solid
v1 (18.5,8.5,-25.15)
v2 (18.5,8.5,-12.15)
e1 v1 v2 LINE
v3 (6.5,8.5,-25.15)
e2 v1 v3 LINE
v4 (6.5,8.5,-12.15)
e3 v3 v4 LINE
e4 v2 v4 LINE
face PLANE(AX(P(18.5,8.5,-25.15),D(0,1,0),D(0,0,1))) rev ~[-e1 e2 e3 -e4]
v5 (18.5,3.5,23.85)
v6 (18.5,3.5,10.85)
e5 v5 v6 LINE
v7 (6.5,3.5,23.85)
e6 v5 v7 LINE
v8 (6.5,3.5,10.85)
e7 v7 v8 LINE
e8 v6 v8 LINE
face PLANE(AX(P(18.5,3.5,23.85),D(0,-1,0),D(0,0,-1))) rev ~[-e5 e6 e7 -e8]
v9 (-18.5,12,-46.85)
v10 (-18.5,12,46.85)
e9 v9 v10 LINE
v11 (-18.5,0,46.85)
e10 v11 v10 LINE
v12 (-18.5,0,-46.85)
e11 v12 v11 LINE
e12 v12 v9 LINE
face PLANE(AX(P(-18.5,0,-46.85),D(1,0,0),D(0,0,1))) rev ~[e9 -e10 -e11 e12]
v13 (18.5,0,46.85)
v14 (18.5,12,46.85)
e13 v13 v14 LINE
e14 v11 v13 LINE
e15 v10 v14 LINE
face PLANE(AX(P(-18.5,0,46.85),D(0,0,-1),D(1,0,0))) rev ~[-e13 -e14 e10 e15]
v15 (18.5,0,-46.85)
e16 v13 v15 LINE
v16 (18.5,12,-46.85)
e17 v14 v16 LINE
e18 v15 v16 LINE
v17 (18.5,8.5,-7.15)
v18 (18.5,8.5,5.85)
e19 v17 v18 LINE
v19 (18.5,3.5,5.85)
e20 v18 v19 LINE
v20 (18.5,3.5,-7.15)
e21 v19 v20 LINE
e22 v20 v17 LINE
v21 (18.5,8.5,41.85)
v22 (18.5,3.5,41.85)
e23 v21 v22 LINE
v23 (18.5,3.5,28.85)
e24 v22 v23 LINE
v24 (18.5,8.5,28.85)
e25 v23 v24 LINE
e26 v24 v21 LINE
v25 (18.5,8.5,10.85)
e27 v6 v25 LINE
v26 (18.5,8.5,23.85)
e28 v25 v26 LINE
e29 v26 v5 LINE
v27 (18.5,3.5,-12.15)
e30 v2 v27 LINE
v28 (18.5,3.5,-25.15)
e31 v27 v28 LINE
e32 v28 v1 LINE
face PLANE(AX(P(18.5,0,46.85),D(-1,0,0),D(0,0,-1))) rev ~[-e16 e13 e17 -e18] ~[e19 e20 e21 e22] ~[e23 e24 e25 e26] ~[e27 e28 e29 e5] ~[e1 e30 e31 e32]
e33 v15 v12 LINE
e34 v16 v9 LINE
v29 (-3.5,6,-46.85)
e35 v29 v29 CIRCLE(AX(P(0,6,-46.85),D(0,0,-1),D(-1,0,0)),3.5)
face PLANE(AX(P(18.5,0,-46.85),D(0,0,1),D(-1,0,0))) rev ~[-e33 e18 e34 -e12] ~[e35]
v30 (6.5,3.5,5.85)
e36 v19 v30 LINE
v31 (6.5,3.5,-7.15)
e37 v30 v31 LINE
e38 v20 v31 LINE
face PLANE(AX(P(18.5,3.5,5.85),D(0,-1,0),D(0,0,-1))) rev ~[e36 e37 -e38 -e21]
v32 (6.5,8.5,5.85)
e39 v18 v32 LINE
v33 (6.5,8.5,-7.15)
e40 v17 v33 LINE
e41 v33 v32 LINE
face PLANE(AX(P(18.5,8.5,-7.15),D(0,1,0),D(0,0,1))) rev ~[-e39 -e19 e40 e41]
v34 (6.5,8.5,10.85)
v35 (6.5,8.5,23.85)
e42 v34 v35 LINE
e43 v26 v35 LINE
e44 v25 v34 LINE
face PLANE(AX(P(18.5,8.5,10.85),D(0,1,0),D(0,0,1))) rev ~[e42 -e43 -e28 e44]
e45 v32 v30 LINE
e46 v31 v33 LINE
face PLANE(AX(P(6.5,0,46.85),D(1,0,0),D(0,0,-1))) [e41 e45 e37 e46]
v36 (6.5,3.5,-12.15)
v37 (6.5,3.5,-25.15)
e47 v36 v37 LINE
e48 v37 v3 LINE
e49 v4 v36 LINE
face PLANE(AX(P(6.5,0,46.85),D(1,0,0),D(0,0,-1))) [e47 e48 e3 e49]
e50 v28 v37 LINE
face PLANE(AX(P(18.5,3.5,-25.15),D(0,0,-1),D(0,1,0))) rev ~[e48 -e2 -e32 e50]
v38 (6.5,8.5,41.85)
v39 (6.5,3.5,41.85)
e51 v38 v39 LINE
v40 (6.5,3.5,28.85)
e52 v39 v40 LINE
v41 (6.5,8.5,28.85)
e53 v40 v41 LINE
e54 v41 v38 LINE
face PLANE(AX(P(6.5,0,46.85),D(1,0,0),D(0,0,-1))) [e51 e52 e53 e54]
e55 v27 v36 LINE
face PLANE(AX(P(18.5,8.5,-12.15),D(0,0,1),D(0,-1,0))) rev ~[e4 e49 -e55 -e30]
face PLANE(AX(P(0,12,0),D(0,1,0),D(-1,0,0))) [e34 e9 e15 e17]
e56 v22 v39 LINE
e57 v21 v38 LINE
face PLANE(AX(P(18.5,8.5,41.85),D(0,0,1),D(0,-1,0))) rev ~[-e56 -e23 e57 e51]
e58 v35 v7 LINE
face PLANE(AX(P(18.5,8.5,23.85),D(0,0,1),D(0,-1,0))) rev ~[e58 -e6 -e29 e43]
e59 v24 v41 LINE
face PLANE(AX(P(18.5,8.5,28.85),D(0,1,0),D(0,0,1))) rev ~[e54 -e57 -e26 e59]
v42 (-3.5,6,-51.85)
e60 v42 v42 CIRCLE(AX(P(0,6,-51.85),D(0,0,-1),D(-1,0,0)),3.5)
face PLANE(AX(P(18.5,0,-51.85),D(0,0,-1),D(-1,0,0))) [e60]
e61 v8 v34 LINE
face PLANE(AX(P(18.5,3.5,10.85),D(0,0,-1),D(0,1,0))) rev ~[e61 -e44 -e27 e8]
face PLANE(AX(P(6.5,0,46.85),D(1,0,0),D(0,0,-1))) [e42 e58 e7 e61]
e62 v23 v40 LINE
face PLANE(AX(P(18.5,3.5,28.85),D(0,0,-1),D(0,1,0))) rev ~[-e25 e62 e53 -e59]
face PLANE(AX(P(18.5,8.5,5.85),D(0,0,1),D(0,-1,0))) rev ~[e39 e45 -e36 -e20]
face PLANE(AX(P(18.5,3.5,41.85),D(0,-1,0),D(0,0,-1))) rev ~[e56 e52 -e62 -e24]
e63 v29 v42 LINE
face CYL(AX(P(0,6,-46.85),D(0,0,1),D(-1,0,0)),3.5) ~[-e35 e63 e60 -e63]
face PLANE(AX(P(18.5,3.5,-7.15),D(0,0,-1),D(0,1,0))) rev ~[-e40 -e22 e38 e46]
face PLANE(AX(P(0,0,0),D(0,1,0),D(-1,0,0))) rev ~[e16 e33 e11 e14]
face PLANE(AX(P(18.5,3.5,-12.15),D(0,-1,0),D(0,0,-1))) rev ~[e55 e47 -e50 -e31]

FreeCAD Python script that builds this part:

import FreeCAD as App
import Part
import Sketcher
from FreeCAD import Vector
Q = App.Units.Quantity

doc = App.newDocument("Part")
params = doc.addObject("Spreadsheet::Sheet", "Params")
for row, (alias, value) in enumerate([
    ("sketch1_width", "37 mm"),
    ("sketch1_height", "93.7 mm"),
    ("pad1_length", "12 mm"),
    ("sketch2_width", "5 mm"),
    ("sketch2_height", "13 mm"),
    ("pocket1_length", "12 mm"),
    ("sketch3_diameter", "7 mm"),
    ("pad2_length", "5 mm"),
], start=1):
    params.set(f"A{row}", alias)
    params.set(f"B{row}", "=" + value)
    params.setAlias(f"B{row}", alias)

body = doc.addObject("PartDesign::Body", "Body")

# Sketch on XZ plane
sketch1 = body.newObject("Sketcher::SketchObject", "Sketch")
sketch1.AttachmentSupport = (doc.getObject("XZ_Plane"), [""])
sketch1.MapMode = "FlatFace"
sketch1.addGeometry([
    Part.LineSegment(Vector(-18, -47, 0), Vector(-18, 47, 0)),
    Part.LineSegment(Vector(-18, 47, 0), Vector(18, 47, 0)),
    Part.LineSegment(Vector(18, 47, 0), Vector(18, -47, 0)),
    Part.LineSegment(Vector(18, -47, 0), Vector(-18, -47, 0)),
], False)
sketch1.addConstraint([
    Sketcher.Constraint("Coincident", 0, 2, 1, 1),
    Sketcher.Constraint("Coincident", 1, 2, 2, 1),
    Sketcher.Constraint("Coincident", 2, 2, 3, 1),
    Sketcher.Constraint("Coincident", 3, 2, 0, 1),
    Sketcher.Constraint("Vertical", 0),
    Sketcher.Constraint("Horizontal", 1),
    Sketcher.Constraint("Vertical", 2),
    Sketcher.Constraint("Horizontal", 3),
    Sketcher.Constraint("Symmetric", 0, 2, 2, 2, -1, 1),
    Sketcher.Constraint("DistanceX", 1, 1, 1, 2, Q("37 mm")),
    Sketcher.Constraint("DistanceY", 0, 1, 0, 2, Q("93.7 mm")),
])
sketch1.setExpression("Constraints[9]", "Params.sketch1_width")
sketch1.setExpression("Constraints[10]", "Params.sketch1_height")
pad1 = body.newObject("PartDesign::Pad", "Pad")
pad1.Profile = sketch1
pad1.setExpression("Length", "Params.pad1_length")
pad1.Reversed = True

# Sketch on YZ plane
sketch2 = body.newObject("Sketcher::SketchObject", "Sketch001")
sketch2.AttachmentSupport = (doc.getObject("YZ_Plane"), [""])
sketch2.MapMode = "FlatFace"
sketch2.AttachmentOffset = App.Placement(Vector(0, 0, 18.5), App.Rotation())
sketch2.addGeometry([
    Part.LineSegment(Vector(8, 42, 0), Vector(4, 42, 0)),  # 0
    Part.LineSegment(Vector(4, 42, 0), Vector(4, 29, 0)),  # 1
    Part.LineSegment(Vector(4, 29, 0), Vector(8, 29, 0)),  # 2
    Part.LineSegment(Vector(8, 29, 0), Vector(8, 42, 0)),  # 3
    Part.LineSegment(Vector(8, 24, 0), Vector(4, 24, 0)),  # 4
    Part.LineSegment(Vector(4, 24, 0), Vector(4, 11, 0)),  # 5
    Part.LineSegment(Vector(4, 11, 0), Vector(8, 11, 0)),  # 6
    Part.LineSegment(Vector(8, 11, 0), Vector(8, 24, 0)),  # 7
    Part.LineSegment(Vector(8, 6, 0), Vector(4, 6, 0)),  # 8
    Part.LineSegment(Vector(4, 6, 0), Vector(4, -7, 0)),  # 9
    Part.LineSegment(Vector(4, -7, 0), Vector(8, -7, 0)),  # 10
    Part.LineSegment(Vector(8, -7, 0), Vector(8, 6, 0)),  # 11
    Part.LineSegment(Vector(8, -12, 0), Vector(4, -12, 0)),  # 12
    Part.LineSegment(Vector(4, -12, 0), Vector(4, -25, 0)),  # 13
    Part.LineSegment(Vector(4, -25, 0), Vector(8, -25, 0)),  # 14
    Part.LineSegment(Vector(8, -25, 0), Vector(8, -12, 0)),  # 15
], False)
sketch2.addConstraint([
    Sketcher.Constraint("Coincident", 0, 2, 1, 1),
    Sketcher.Constraint("Coincident", 1, 2, 2, 1),
    Sketcher.Constraint("Coincident", 2, 2, 3, 1),
    Sketcher.Constraint("Coincident", 3, 2, 0, 1),
    Sketcher.Constraint("Coincident", 4, 2, 5, 1),
    Sketcher.Constraint("Coincident", 5, 2, 6, 1),
    Sketcher.Constraint("Coincident", 6, 2, 7, 1),
    Sketcher.Constraint("Coincident", 7, 2, 4, 1),
    Sketcher.Constraint("Coincident", 8, 2, 9, 1),
    Sketcher.Constraint("Coincident", 9, 2, 10, 1),
    Sketcher.Constraint("Coincident", 10, 2, 11, 1),
    Sketcher.Constraint("Coincident", 11, 2, 8, 1),
    Sketcher.Constraint("Coincident", 12, 2, 13, 1),
    Sketcher.Constraint("Coincident", 13, 2, 14, 1),
    Sketcher.Constraint("Coincident", 14, 2, 15, 1),
    Sketcher.Constraint("Coincident", 15, 2, 12, 1),
    Sketcher.Constraint("Horizontal", 0),
    Sketcher.Constraint("Vertical", 1),
    Sketcher.Constraint("Horizontal", 2),
    Sketcher.Constraint("Vertical", 3),
    Sketcher.Constraint("Horizontal", 4),
    Sketcher.Constraint("Vertical", 5),
    Sketcher.Constraint("Horizontal", 6),
    Sketcher.Constraint("Vertical", 7),
    Sketcher.Constraint("Horizontal", 8),
    Sketcher.Constraint("Vertical", 9),
    Sketcher.Constraint("Horizontal", 10),
    Sketcher.Constraint("Vertical", 11),
    Sketcher.Constraint("Horizontal", 12),
    Sketcher.Constraint("Vertical", 13),
    Sketcher.Constraint("Horizontal", 14),
    Sketcher.Constraint("Vertical", 15),
    Sketcher.Constraint("Vertical", 1, 2, 4, 2),
    Sketcher.Constraint("Vertical", 3, 2, 6, 2),
    Sketcher.Constraint("Vertical", 5, 2, 8, 2),
    Sketcher.Constraint("Vertical", 7, 2, 10, 2),
    Sketcher.Constraint("Vertical", 9, 2, 12, 2),
    Sketcher.Constraint("Vertical", 11, 2, 14, 2),
    Sketcher.Constraint("Equal", 3, 5),
    Sketcher.Constraint("Equal", 7, 9),
    Sketcher.Constraint("Equal", 11, 13),
    Sketcher.Constraint("DistanceX", 0, 2, 0, 1, Q("5 mm")),
    Sketcher.Constraint("DistanceY", 1, 2, 1, 1, Q("13 mm")),
    Sketcher.Constraint("DistanceY", 4, 2, 1, 2, Q("5 mm")),
    Sketcher.Constraint("DistanceY", 8, 2, 5, 2, Q("5 mm")),
    Sketcher.Constraint("DistanceY", 12, 2, 9, 2, Q("5 mm")),
    Sketcher.Constraint("DistanceX", -1, 1, 0, 2, Q("3.5 mm")),
    Sketcher.Constraint("DistanceY", -1, 1, 0, 2, Q("41.85 mm")),
])
sketch2.setExpression("Constraints[41]", "Params.sketch2_width")
sketch2.setExpression("Constraints[42]", "Params.sketch2_height")
pocket1 = body.newObject("PartDesign::Pocket", "Pocket")
pocket1.Profile = sketch2
pocket1.setExpression("Length", "Params.pocket1_length")

# Sketch on XY plane
sketch3 = body.newObject("Sketcher::SketchObject", "Sketch002")
sketch3.AttachmentSupport = (doc.getObject("XY_Plane"), [""])
sketch3.MapMode = "FlatFace"
sketch3.AttachmentOffset = App.Placement(Vector(0, 0, -46.85), App.Rotation())
sketch3.addGeometry(Part.Circle(Vector(0, 6, 0), Vector(0, 0, 1), 3.5), False)
sketch3.addConstraint([
    Sketcher.Constraint("PointOnObject", 0, 3, -2),
    Sketcher.Constraint("Diameter", 0, Q("7 mm")),
    Sketcher.Constraint("DistanceY", -1, 1, 0, 3, Q("6 mm")),
])
sketch3.setExpression("Constraints[1]", "Params.sketch3_diameter")
pad2 = body.newObject("PartDesign::Pad", "Pad001")
pad2.Profile = sketch3
pad2.setExpression("Length", "Params.pad2_length")
pad2.Reversed = True

doc.recompute()
